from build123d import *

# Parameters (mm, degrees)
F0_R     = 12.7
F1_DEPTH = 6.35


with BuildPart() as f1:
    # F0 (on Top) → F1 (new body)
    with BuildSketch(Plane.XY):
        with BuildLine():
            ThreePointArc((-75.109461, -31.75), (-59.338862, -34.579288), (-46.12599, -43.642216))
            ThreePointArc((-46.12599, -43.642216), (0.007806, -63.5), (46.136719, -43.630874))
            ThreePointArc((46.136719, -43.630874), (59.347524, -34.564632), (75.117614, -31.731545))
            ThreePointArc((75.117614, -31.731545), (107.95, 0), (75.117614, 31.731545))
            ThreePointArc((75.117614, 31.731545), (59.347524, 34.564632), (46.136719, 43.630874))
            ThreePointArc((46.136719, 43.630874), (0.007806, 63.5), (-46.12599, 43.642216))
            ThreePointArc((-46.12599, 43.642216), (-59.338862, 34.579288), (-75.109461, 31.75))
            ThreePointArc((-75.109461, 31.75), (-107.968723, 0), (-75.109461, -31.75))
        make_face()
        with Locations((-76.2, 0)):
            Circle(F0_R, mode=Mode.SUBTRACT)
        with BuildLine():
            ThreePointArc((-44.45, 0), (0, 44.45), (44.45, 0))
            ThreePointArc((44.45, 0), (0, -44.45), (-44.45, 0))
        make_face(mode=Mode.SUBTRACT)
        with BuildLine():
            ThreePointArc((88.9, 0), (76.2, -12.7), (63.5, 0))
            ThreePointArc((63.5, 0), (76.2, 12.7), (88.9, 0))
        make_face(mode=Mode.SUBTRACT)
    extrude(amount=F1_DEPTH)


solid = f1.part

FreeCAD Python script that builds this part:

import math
import FreeCAD as App
import Part
import Sketcher

V = App.Vector
Q = App.Units.Quantity

doc = App.newDocument("Part")
params = doc.addObject("Spreadsheet::Sheet", "Params")
for row, (alias, value) in enumerate([
    ("sketch1_diameter", "1 in"),
    ("sketch1_diameter2", "3.5 in"),
    ("sketch1_radius", "1.5000001 in"),
    ("sketch1_radius2", "2.4999999 in"),
    ("sketch1_radius3", "1.5000002 in"),
    ("pad1_length", "0.25 in"),
], start=1):
    params.set(f"A{row}", alias)
    params.set(f"B{row}", "=" + value)
    params.setAlias(f"B{row}", alias)

body = doc.addObject("PartDesign::Body", "Body")

sketch1 = body.newObject("Sketcher::SketchObject", "Sketch")
sketch1.AttachmentSupport = (doc.getObject("XY_Plane"), [""])
sketch1.MapMode = "FlatFace"
sketch1.addGeometry(Part.ArcOfCircle(Part.Circle(V(-74, -70, 0), V(0, 0, 1), 38), math.radians(43), math.radians(92)), False)
sketch1.addGeometry(Part.ArcOfCircle(Part.Circle(V(0, 0, 0), V(0, 0, 1), 63), math.radians(-137), math.radians(-43)), False)
sketch1.addGeometry(Part.ArcOfCircle(Part.Circle(V(74, -70, 0), V(0, 0, 1), 38), math.radians(88), math.radians(137)), False)
sketch1.addGeometry(Part.ArcOfCircle(Part.Circle(V(76, 0, 0), V(0, 0, 1), 32), math.radians(-92), math.radians(92)), False)
sketch1.addGeometry(Part.ArcOfCircle(Part.Circle(V(74, 70, 0), V(0, 0, 1), 38), math.radians(-137), math.radians(-88)), False)
sketch1.addGeometry(Part.ArcOfCircle(Part.Circle(V(0, 0, 0), V(0, 0, 1), 63), math.radians(43), math.radians(137)), False)
sketch1.addGeometry(Part.ArcOfCircle(Part.Circle(V(-74, 70, 0), V(0, 0, 1), 38), math.radians(-92), math.radians(-43)), False)
sketch1.addGeometry(Part.ArcOfCircle(Part.Circle(V(-76, 0, 0), V(0, 0, 1), 32), math.radians(88), math.radians(272)), False)
sketch1.addGeometry(Part.Circle(V(76, 0, 0), V(0, 0, 1), 13), False)
sketch1.addGeometry(Part.Circle(V(-76, 0, 0), V(0, 0, 1), 13), False)
sketch1.addGeometry(Part.Circle(V(0, 0, 0), V(0, 0, 1), 44), False)
sketch1.addConstraint(Sketcher.Constraint("Tangent", 0, 1, 1, 1))
sketch1.addConstraint(Sketcher.Constraint("Tangent", 1, 2, 2, 2))
sketch1.addConstraint(Sketcher.Constraint("Tangent", 2, 1, 3, 1))
sketch1.addConstraint(Sketcher.Constraint("Tangent", 3, 2, 4, 2))
sketch1.addConstraint(Sketcher.Constraint("Tangent", 4, 1, 5, 1))
sketch1.addConstraint(Sketcher.Constraint("Tangent", 5, 2, 6, 2))
sketch1.addConstraint(Sketcher.Constraint("Tangent", 6, 1, 7, 1))
sketch1.addConstraint(Sketcher.Constraint("Tangent", 7, 2, 0, 2))
sketch1.addConstraint(Sketcher.Constraint("Coincident", 1, 3, -1, 1))
sketch1.addConstraint(Sketcher.Constraint("Coincident", 5, 3, -1, 1))
sketch1.addConstraint(Sketcher.Constraint("Coincident", 10, 3, -1, 1))
sketch1.addConstraint(Sketcher.Constraint("Coincident", 8, 3, 3, 3))
sketch1.addConstraint(Sketcher.Constraint("Coincident", 9, 3, 7, 3))
sketch1.addConstraint(Sketcher.Constraint("Equal", 2, 4))
sketch1.addConstraint(Sketcher.Constraint("Equal", 1, 5))
sketch1.addConstraint(Sketcher.Constraint("Equal", 0, 6))
sketch1.addConstraint(Sketcher.Constraint("Equal", 8, 9))
sketch1.addConstraint(Sketcher.Constraint("Symmetric", 3, 3, 7, 3, -1, 1))
sketch1.addConstraint(Sketcher.Constraint("PointOnObject", 3, 3, -1))
sketch1.addConstraint(Sketcher.Constraint("Diameter", 8, Q("1 in")))
sketch1.addConstraint(Sketcher.Constraint("Diameter", 10, Q("3.5 in")))
sketch1.addConstraint(Sketcher.Constraint("Radius", 0, Q("1.5000001 in")))
sketch1.addConstraint(Sketcher.Constraint("Radius", 1, Q("2.4999999 in")))
sketch1.addConstraint(Sketcher.Constraint("Radius", 2, Q("1.5000002 in")))
sketch1.addConstraint(Sketcher.Constraint("Radius", 3, Q("1.25 in")))
sketch1.addConstraint(Sketcher.Constraint("DistanceX", -1, 1, 3, 3, Q("3 in")))
sketch1.addConstraint(Sketcher.Constraint("DistanceY", 7, 2, 6, 1, Q("2.5 in")))
sketch1.setExpression("Constraints[19]", "Params.sketch1_diameter")
sketch1.setExpression("Constraints[20]", "Params.sketch1_diameter2")
sketch1.setExpression("Constraints[21]", "Params.sketch1_radius")
sketch1.setExpression("Constraints[22]", "Params.sketch1_radius2")
sketch1.setExpression("Constraints[23]", "Params.sketch1_radius3")
pad1 = body.newObject("PartDesign::Pad", "Pad")
pad1.Profile = sketch1
pad1.setExpression("Length", "Params.pad1_length")

doc.recompute()
